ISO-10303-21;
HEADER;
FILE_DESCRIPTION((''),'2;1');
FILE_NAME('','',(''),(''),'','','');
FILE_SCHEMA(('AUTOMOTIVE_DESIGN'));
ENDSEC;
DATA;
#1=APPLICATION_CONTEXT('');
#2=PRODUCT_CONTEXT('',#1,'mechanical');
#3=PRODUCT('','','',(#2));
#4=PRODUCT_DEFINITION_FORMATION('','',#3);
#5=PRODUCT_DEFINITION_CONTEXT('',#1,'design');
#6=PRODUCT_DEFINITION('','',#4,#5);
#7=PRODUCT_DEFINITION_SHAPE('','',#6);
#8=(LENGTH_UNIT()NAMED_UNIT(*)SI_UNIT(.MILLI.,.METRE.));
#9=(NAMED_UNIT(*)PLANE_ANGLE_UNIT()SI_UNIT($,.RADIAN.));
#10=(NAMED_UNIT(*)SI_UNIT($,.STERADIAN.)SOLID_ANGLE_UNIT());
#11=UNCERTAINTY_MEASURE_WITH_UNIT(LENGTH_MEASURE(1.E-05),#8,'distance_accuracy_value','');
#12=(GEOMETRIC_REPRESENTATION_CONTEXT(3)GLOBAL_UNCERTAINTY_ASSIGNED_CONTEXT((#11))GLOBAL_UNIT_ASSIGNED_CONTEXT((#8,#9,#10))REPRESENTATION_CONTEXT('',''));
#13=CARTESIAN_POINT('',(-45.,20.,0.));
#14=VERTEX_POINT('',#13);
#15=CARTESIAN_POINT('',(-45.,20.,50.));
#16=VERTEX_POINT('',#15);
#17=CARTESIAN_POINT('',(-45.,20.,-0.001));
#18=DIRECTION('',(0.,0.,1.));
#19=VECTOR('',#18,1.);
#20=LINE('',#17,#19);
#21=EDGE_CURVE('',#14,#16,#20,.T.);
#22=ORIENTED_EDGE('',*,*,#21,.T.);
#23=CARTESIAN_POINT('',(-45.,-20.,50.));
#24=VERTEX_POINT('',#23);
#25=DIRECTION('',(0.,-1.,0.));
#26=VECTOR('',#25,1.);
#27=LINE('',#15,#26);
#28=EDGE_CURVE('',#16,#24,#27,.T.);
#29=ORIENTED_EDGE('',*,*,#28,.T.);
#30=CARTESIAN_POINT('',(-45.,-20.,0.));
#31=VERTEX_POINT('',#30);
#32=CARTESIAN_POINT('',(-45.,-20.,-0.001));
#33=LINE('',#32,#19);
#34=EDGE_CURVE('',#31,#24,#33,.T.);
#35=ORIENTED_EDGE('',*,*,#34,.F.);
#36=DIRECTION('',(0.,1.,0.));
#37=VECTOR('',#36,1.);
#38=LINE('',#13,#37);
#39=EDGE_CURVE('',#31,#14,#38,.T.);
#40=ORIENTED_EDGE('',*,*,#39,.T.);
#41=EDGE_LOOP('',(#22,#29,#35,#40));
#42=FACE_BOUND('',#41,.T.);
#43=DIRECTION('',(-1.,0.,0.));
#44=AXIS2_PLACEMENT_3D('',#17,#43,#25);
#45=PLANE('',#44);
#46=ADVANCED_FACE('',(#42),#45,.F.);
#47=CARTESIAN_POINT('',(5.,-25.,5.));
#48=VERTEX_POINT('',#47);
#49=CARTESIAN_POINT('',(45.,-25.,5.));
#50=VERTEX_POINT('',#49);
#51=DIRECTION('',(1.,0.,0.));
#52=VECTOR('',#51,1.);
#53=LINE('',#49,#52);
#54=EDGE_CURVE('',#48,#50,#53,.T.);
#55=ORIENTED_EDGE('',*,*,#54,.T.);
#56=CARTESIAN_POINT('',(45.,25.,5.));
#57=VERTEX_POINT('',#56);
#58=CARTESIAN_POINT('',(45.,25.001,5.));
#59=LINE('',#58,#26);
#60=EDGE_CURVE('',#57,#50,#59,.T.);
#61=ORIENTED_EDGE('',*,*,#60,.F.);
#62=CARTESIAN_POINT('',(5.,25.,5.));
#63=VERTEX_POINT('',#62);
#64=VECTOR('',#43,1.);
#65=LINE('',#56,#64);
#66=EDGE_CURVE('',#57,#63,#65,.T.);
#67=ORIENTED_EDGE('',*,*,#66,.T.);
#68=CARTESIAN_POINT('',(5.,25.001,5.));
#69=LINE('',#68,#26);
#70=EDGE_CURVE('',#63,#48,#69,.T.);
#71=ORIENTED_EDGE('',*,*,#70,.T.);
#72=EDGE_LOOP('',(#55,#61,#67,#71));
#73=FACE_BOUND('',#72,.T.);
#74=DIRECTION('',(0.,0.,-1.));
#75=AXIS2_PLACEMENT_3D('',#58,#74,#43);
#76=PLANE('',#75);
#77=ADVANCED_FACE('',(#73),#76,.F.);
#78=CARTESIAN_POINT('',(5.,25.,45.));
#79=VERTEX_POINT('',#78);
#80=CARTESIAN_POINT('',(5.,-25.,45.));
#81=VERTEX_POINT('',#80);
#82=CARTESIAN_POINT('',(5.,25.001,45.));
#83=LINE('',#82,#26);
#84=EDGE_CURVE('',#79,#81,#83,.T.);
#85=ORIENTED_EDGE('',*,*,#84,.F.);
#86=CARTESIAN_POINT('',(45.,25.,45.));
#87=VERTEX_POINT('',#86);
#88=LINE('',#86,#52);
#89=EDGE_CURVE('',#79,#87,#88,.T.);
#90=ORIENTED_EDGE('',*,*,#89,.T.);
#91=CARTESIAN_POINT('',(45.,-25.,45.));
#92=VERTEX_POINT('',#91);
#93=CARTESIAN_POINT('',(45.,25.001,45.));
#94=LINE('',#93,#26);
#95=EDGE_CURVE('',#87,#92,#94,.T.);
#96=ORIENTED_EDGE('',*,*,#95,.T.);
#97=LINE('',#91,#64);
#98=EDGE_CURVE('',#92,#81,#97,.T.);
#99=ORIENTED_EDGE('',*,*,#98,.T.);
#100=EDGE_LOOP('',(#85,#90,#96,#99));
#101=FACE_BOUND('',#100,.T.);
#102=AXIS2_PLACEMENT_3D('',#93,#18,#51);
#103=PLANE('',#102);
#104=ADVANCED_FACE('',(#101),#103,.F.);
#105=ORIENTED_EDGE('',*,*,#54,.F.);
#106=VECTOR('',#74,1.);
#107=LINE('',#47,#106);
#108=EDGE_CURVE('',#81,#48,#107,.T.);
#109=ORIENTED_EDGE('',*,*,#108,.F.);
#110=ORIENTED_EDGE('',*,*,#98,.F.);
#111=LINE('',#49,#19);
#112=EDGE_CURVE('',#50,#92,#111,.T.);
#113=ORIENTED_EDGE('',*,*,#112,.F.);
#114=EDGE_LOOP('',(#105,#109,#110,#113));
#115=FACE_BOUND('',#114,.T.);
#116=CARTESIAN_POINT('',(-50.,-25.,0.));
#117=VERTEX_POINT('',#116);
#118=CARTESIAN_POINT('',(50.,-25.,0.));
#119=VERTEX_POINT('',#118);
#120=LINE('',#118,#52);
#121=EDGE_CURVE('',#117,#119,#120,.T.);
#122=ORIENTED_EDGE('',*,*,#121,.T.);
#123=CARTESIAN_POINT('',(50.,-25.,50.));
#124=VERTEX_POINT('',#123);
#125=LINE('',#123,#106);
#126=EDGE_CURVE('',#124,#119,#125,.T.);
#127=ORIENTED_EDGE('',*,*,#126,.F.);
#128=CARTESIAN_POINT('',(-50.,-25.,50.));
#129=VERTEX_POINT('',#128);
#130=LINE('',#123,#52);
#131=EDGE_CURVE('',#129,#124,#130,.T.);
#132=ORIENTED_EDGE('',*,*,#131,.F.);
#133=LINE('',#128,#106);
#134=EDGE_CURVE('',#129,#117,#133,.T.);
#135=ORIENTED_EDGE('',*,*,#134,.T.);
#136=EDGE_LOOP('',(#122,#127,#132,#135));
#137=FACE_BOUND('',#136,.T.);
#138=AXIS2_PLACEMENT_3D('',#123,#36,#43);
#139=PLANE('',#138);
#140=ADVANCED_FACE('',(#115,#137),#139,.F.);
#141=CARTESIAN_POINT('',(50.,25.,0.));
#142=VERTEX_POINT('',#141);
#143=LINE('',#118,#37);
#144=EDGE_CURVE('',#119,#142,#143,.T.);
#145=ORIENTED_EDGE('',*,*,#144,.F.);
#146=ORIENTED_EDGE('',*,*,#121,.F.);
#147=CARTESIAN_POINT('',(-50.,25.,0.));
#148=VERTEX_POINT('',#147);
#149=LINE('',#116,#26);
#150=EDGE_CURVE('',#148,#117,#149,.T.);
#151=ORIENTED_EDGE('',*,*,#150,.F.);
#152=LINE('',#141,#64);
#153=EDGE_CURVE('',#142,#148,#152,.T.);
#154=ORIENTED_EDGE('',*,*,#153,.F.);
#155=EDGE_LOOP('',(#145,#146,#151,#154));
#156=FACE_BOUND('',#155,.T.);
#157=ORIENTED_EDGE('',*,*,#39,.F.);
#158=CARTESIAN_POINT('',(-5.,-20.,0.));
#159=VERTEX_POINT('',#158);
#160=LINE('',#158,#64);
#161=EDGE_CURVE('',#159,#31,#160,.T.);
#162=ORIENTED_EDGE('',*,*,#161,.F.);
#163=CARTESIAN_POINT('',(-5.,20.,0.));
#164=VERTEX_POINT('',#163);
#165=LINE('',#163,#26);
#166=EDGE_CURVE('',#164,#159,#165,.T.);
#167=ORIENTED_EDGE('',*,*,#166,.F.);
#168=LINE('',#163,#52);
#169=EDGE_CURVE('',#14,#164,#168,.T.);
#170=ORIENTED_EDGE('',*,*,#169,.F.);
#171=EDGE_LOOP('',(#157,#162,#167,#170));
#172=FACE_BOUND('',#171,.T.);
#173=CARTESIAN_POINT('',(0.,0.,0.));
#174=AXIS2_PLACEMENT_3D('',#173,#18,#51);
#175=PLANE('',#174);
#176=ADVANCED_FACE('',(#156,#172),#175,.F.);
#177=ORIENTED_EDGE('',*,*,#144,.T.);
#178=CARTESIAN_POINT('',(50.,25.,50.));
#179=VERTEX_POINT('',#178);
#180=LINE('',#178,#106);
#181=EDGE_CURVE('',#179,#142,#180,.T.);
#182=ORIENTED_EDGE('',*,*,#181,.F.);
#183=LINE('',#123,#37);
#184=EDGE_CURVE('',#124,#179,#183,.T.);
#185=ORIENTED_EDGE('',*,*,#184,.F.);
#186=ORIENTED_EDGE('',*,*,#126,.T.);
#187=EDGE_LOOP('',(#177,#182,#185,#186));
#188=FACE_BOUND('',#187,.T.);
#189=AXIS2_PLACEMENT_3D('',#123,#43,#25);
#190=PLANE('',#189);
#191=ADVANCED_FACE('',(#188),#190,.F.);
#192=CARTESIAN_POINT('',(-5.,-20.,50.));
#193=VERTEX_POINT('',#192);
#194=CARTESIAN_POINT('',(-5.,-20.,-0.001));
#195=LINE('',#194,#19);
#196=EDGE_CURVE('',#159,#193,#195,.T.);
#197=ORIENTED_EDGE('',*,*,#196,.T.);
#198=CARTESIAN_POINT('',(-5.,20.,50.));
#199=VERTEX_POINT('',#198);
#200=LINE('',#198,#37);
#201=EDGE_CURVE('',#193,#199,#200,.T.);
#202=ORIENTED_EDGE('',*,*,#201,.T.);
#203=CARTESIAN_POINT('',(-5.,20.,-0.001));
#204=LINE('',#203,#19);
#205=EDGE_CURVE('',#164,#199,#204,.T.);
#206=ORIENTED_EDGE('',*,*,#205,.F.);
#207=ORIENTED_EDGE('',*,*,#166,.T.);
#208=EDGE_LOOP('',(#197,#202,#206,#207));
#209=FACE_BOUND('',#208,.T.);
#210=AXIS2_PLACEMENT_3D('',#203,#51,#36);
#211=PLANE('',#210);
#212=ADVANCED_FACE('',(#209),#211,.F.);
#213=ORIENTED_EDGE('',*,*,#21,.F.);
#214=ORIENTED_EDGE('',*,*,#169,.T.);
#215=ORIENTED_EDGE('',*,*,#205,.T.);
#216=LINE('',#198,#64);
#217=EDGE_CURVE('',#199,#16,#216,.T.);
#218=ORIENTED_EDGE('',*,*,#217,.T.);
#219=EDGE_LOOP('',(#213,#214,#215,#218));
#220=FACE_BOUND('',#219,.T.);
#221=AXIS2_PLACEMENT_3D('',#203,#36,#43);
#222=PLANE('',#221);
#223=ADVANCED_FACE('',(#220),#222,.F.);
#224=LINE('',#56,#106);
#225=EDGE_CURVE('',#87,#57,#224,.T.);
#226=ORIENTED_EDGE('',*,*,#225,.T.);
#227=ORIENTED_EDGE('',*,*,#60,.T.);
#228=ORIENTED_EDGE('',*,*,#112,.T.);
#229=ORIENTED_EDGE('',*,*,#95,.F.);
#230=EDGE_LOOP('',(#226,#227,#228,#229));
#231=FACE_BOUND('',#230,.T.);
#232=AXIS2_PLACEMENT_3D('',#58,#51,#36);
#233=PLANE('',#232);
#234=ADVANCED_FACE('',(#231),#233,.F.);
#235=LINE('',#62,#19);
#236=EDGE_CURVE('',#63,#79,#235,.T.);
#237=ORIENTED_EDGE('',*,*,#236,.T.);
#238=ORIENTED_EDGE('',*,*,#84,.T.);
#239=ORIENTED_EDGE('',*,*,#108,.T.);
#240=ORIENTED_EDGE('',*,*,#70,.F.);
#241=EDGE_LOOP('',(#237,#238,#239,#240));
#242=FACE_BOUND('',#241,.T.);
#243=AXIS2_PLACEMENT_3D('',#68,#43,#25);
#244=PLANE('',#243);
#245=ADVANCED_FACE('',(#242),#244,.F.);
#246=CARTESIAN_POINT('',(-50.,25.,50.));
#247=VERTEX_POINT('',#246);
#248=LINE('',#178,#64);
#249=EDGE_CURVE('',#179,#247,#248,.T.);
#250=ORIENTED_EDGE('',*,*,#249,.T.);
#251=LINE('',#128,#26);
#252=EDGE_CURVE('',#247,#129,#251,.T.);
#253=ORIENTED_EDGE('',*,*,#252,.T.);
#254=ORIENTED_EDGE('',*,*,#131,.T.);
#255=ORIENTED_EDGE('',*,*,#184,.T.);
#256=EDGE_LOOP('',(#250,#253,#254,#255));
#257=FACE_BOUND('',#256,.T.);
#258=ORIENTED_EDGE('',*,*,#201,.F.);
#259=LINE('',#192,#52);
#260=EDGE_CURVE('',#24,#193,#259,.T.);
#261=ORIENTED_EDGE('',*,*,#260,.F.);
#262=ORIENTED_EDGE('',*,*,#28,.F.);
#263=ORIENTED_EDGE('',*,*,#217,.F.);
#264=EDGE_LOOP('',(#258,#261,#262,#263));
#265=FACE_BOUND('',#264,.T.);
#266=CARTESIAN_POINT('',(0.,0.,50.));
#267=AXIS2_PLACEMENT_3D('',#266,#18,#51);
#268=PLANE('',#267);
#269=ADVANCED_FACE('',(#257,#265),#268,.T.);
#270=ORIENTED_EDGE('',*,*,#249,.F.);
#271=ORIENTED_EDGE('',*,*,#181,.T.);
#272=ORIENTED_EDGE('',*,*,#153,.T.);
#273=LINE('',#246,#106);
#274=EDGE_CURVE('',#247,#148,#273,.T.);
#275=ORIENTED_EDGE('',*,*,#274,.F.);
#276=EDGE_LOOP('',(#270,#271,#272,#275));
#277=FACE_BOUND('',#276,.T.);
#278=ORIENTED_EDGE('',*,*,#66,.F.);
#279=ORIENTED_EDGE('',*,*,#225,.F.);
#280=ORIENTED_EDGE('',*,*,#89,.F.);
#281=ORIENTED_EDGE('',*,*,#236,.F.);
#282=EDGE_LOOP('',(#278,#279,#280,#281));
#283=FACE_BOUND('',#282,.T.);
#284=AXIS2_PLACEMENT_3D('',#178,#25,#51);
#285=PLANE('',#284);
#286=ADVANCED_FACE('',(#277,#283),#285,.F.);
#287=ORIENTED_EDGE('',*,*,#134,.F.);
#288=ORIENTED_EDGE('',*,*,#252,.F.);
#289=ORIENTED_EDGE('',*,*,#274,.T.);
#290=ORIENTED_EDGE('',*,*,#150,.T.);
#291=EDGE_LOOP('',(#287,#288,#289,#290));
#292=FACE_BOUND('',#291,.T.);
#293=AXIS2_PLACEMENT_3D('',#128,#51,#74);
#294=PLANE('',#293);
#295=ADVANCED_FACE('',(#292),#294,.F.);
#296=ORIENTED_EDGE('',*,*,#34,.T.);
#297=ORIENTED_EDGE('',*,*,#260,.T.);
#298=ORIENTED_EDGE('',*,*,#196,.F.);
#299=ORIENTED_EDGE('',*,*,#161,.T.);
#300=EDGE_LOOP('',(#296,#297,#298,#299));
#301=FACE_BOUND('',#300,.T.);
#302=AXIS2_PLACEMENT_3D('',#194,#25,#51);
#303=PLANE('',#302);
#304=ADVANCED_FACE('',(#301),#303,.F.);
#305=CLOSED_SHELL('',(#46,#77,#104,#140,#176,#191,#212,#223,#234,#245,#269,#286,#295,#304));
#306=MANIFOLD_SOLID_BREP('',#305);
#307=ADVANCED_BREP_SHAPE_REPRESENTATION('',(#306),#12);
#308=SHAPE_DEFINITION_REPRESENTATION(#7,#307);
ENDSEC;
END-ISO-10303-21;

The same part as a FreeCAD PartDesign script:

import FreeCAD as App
import Part
import Sketcher

V = App.Vector
Q = App.Units.Quantity


def add_polygon(sketch, points):
    """Adds a closed chain of lines whose ends are joined by coincident constraints."""
    first, n = sketch.GeometryCount, len(points)
    for a, b in zip(points, points[1:] + points[:1]):
        sketch.addGeometry(Part.LineSegment(App.Vector(*a, 0), App.Vector(*b, 0)), False)
    for i in range(n):
        sketch.addConstraint(Sketcher.Constraint("Coincident", first + i, 2, first + (i + 1) % n, 1))

doc = App.newDocument("Part")
params = doc.addObject("Spreadsheet::Sheet", "Params")
for row, (alias, value) in enumerate([
    ("sketch1_width", "100 mm"),
    ("sketch1_height", "50 mm"),
    ("pad1_length", "50 mm"),
    ("sketch2_width", "40 mm"),
    ("sketch3_width", "40 mm"),
], start=1):
    params.set(f"A{row}", alias)
    params.set(f"B{row}", "=" + value)
    params.setAlias(f"B{row}", alias)

body = doc.addObject("PartDesign::Body", "Body")

# Sketch on XY plane
sketch1 = body.newObject("Sketcher::SketchObject", "Sketch")
sketch1.AttachmentSupport = (doc.getObject("XY_Plane"), [""])
sketch1.MapMode = "FlatFace"
add_polygon(sketch1, [(-50, 25), (-50, -25), (50, -25), (50, 25)])  # lines 0-3
sketch1.addConstraint([
    Sketcher.Constraint("Vertical", 0),
    Sketcher.Constraint("Horizontal", 1),
    Sketcher.Constraint("Vertical", 2),
    Sketcher.Constraint("Horizontal", 3),
    Sketcher.Constraint("Symmetric", 0, 2, 2, 2, -1, 1),
    Sketcher.Constraint("DistanceX", 1, 1, 1, 2, Q("100 mm")),
    Sketcher.Constraint("DistanceY", 0, 2, 0, 1, Q("50 mm")),
])
sketch1.setExpression("Constraints[9]", "Params.sketch1_width")
sketch1.setExpression("Constraints[10]", "Params.sketch1_height")
pad1 = body.newObject("PartDesign::Pad", "Pad")
pad1.Profile = sketch1
pad1.setExpression("Length", "Params.pad1_length")

# Sketch on XZ plane
sketch2 = body.newObject("Sketcher::SketchObject", "Sketch001")
sketch2.AttachmentSupport = (doc.getObject("XZ_Plane"), [""])
sketch2.MapMode = "FlatFace"
sketch2.AttachmentOffset = App.Placement(V(0, 0, 25), App.Rotation())
add_polygon(sketch2, [(5, 45), (5, 5), (45, 5), (45, 45)])  # lines 0-3
sketch2.addConstraint([
    Sketcher.Constraint("Vertical", 0),
    Sketcher.Constraint("Horizontal", 1),
    Sketcher.Constraint("Vertical", 2),
    Sketcher.Constraint("Horizontal", 3),
    Sketcher.Constraint("Equal", 3, 0),
    Sketcher.Constraint("DistanceX", 1, 1, 1, 2, Q("40 mm")),
    Sketcher.Constraint("DistanceX", -1, 1, 0, 2, Q("5 mm")),
    Sketcher.Constraint("DistanceY", -1, 1, 0, 2, Q("5 mm")),
])
sketch2.setExpression("Constraints[9]", "Params.sketch2_width")
pocket1 = body.newObject("PartDesign::Pocket", "Pocket")
pocket1.Profile = sketch2
pocket1.Type = "UpToFirst"

# Sketch on XY plane
sketch3 = body.newObject("Sketcher::SketchObject", "Sketch002")
sketch3.AttachmentSupport = (doc.getObject("XY_Plane"), [""])
sketch3.MapMode = "FlatFace"
sketch3.AttachmentOffset = App.Placement(V(0, 0, 50), App.Rotation())
add_polygon(sketch3, [(-45, 20), (-45, -20), (-5, -20), (-5, 20)])  # lines 0-3
sketch3.addConstraint([
    Sketcher.Constraint("Vertical", 0),
    Sketcher.Constraint("Horizontal", 1),
    Sketcher.Constraint("Vertical", 2),
    Sketcher.Constraint("Horizontal", 3),
    Sketcher.Constraint("Equal", 3, 0),
    Sketcher.Constraint("DistanceX", 1, 1, 1, 2, Q("40 mm")),
    Sketcher.Constraint("DistanceX", 0, 2, -1, 1, Q("45 mm")),
    Sketcher.Constraint("DistanceY", 0, 2, -1, 1, Q("20 mm")),
])
sketch3.setExpression("Constraints[9]", "Params.sketch3_width")
pocket2 = body.newObject("PartDesign::Pocket", "Pocket001")
pocket2.Profile = sketch3
pocket2.Type = "UpToFirst"

doc.recompute()
